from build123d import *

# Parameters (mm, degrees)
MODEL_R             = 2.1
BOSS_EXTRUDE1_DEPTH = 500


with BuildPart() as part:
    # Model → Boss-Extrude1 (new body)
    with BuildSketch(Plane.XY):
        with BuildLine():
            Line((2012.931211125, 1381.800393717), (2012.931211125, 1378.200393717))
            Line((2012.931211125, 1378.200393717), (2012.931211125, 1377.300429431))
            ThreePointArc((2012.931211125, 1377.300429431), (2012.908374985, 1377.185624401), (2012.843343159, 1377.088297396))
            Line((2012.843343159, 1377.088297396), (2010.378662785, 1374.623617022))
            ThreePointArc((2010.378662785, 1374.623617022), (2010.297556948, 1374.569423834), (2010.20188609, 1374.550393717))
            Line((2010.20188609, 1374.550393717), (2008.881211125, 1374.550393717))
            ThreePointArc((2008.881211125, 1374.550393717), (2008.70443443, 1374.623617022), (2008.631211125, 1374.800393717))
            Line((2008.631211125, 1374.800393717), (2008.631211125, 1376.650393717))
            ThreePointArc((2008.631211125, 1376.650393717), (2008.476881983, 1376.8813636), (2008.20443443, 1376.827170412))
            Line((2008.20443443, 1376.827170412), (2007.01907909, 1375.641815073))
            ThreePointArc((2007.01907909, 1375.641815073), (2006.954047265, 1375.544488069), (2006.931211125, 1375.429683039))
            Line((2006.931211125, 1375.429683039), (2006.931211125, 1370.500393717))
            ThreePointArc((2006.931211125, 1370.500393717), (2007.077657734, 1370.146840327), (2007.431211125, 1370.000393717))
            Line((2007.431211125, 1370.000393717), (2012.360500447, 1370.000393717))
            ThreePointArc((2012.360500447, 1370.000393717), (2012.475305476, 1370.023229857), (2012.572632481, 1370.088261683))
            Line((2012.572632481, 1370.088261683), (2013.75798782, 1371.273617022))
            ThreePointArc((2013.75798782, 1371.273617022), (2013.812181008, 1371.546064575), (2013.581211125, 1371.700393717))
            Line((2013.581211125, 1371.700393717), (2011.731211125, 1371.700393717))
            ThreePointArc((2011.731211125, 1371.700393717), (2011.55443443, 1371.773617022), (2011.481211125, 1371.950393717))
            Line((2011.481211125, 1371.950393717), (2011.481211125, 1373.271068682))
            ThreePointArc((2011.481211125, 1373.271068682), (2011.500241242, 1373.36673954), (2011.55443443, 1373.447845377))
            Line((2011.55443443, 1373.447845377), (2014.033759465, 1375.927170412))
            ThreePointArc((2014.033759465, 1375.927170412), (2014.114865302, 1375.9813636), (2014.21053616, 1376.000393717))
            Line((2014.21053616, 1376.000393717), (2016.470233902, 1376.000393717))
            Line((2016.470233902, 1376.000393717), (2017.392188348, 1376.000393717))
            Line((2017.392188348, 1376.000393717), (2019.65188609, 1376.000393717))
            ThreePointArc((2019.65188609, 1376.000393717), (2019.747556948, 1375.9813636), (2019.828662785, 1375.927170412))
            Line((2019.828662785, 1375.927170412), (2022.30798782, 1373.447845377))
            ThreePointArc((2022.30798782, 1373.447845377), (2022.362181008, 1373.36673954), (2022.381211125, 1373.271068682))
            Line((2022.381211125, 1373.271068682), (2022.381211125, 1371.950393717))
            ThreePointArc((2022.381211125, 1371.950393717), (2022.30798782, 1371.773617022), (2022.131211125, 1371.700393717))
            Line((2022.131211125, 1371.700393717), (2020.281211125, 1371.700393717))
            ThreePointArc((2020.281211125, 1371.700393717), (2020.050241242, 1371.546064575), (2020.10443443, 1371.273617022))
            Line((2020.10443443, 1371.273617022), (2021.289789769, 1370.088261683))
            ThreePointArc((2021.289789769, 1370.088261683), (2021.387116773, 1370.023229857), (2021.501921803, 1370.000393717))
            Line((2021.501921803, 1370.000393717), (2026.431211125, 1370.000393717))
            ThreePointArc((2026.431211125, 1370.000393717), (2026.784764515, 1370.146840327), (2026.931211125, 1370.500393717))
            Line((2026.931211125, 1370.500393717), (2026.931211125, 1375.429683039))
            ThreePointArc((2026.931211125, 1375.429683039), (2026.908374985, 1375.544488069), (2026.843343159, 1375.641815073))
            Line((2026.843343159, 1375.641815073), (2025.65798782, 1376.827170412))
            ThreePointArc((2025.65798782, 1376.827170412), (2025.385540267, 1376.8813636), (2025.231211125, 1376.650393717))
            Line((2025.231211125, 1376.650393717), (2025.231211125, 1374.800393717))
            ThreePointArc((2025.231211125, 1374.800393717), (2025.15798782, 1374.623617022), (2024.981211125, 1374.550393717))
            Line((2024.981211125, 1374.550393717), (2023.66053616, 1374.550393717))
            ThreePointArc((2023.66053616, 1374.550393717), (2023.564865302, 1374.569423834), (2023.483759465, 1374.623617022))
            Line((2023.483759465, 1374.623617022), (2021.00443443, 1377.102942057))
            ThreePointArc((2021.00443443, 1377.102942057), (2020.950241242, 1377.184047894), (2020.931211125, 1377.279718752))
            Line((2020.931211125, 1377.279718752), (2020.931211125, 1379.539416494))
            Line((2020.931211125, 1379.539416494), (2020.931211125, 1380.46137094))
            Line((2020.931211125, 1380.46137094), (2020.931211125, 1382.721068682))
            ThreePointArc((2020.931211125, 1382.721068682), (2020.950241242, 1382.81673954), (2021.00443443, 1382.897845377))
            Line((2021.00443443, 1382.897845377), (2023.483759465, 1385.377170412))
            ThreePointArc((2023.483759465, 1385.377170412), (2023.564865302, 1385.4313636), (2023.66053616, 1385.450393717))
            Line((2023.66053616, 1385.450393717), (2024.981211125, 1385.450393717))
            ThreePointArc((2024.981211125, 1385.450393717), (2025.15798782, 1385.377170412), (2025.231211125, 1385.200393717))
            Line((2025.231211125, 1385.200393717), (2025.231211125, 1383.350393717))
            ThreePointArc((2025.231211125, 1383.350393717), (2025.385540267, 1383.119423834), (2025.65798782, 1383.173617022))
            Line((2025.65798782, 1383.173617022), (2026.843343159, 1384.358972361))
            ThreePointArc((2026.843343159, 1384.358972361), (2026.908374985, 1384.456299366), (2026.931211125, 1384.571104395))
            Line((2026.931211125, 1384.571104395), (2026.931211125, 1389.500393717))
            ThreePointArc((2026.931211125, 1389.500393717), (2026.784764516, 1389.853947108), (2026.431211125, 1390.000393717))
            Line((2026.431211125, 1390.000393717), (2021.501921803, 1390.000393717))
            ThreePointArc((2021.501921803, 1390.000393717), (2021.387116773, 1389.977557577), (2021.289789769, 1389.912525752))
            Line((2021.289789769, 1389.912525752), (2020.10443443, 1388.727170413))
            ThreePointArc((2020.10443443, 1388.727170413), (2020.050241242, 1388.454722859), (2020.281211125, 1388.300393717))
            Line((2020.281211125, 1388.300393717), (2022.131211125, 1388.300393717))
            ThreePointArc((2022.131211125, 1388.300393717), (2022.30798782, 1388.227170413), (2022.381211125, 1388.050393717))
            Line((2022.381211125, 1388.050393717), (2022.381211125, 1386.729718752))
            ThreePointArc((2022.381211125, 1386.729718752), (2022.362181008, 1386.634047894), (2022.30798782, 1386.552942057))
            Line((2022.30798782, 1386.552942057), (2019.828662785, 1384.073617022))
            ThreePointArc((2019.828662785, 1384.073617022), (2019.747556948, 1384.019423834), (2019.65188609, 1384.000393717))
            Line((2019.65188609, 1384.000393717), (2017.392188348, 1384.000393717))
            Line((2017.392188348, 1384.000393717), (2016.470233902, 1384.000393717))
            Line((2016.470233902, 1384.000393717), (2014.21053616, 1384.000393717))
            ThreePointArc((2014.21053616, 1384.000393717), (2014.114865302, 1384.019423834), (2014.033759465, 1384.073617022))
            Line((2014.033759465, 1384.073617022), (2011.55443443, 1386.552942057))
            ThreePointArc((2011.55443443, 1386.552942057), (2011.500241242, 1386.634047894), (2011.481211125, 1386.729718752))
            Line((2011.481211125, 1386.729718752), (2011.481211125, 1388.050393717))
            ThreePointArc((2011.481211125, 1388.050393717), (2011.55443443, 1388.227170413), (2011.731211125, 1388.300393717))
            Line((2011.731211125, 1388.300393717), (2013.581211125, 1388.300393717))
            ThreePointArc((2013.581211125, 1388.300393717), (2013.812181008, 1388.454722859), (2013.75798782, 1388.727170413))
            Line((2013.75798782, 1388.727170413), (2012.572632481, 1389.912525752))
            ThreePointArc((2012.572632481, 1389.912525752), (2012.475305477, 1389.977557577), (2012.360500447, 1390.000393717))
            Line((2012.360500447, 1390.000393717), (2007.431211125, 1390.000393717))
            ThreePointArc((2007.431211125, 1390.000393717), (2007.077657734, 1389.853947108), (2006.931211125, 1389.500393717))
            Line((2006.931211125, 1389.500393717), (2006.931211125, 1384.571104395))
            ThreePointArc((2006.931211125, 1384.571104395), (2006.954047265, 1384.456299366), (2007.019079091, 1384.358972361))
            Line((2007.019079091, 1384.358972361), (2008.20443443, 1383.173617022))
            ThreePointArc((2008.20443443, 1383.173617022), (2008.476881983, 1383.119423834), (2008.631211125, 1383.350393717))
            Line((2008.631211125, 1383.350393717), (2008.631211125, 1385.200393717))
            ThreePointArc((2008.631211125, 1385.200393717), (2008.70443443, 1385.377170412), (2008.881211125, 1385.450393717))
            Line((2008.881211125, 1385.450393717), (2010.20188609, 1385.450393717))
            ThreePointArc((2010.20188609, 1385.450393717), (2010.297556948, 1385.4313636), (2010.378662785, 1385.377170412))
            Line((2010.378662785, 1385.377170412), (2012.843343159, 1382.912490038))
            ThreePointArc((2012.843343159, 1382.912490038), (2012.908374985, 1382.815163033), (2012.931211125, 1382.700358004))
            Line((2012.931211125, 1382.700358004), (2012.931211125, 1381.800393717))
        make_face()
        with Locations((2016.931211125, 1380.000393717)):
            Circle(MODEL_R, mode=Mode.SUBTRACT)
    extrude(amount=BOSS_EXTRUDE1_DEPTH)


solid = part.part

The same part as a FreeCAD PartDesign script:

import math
import FreeCAD as App
import Part
import Sketcher

V = App.Vector

doc = App.newDocument("Part")
body = doc.addObject("PartDesign::Body", "Body")

# Sketch on XY plane
sketch1 = doc.addObject("Sketcher::SketchObject", "Sketch")
body.addObject(sketch1)
sketch1.AttachmentSupport = (doc.XY_Plane, [""])
sketch1.MapMode = "FlatFace"
sketch1.addGeometry(Part.ArcOfCircle(Part.Circle(V(2012.631211, 1377.300429, 0), V(0, 0, 1), 0.3), math.radians(-45), math.radians(0)), False)
sketch1.addGeometry(Part.LineSegment(V(2012.843343, 1377.088297, 0), V(2010.378663, 1374.623617, 0)), False)
sketch1.addGeometry(Part.ArcOfCircle(Part.Circle(V(2010.201886, 1374.800394, 0), V(0, 0, 1), 0.25), math.radians(-90), math.radians(-45)), False)
sketch1.addGeometry(Part.LineSegment(V(2010.201886, 1374.550394, 0), V(2008.881211, 1374.550394, 0)), False)
sketch1.addGeometry(Part.ArcOfCircle(Part.Circle(V(2008.881211, 1374.800394, 0), V(0, 0, 1), 0.25), math.radians(-180), math.radians(-90)), False)
sketch1.addGeometry(Part.LineSegment(V(2008.631211, 1374.800394, 0), V(2008.631211, 1376.650394, 0)), False)
sketch1.addGeometry(Part.ArcOfCircle(Part.Circle(V(2008.381211, 1376.650394, 0), V(0, 0, 1), 0.25), math.radians(0), math.radians(135)), False)
sketch1.addGeometry(Part.LineSegment(V(2008.204434, 1376.82717, 0), V(2007.019079, 1375.641815, 0)), False)
sketch1.addGeometry(Part.ArcOfCircle(Part.Circle(V(2007.231211, 1375.429683, 0), V(0, 0, 1), 0.3), math.radians(135), math.radians(180)), False)
sketch1.addGeometry(Part.LineSegment(V(2006.931211, 1375.429683, 0), V(2006.931211, 1370.500394, 0)), False)
sketch1.addGeometry(Part.ArcOfCircle(Part.Circle(V(2007.431211, 1370.500394, 0), V(0, 0, 1), 0.5), math.radians(180), math.radians(270)), False)
sketch1.addGeometry(Part.LineSegment(V(2007.431211, 1370.000394, 0), V(2012.3605, 1370.000394, 0)), False)
sketch1.addGeometry(Part.ArcOfCircle(Part.Circle(V(2012.3605, 1370.300394, 0), V(0, 0, 1), 0.3), math.radians(-90), math.radians(-45)), False)
sketch1.addGeometry(Part.LineSegment(V(2012.572632, 1370.088262, 0), V(2013.757988, 1371.273617, 0)), False)
sketch1.addGeometry(Part.ArcOfCircle(Part.Circle(V(2013.581211, 1371.450394, 0), V(0, 0, 1), 0.25), math.radians(-45), math.radians(90)), False)
sketch1.addGeometry(Part.LineSegment(V(2013.581211, 1371.700394, 0), V(2011.731211, 1371.700394, 0)), False)
sketch1.addGeometry(Part.ArcOfCircle(Part.Circle(V(2011.731211, 1371.950394, 0), V(0, 0, 1), 0.25), math.radians(-180), math.radians(-90)), False)
sketch1.addGeometry(Part.LineSegment(V(2011.481211, 1371.950394, 0), V(2011.481211, 1373.271069, 0)), False)
sketch1.addGeometry(Part.ArcOfCircle(Part.Circle(V(2011.731211, 1373.271069, 0), V(0, 0, 1), 0.25), math.radians(135), math.radians(180)), False)
sketch1.addGeometry(Part.LineSegment(V(2011.554434, 1373.447845, 0), V(2014.033759, 1375.92717, 0)), False)
sketch1.addGeometry(Part.ArcOfCircle(Part.Circle(V(2014.210536, 1375.750394, 0), V(0, 0, 1), 0.25), math.radians(90), math.radians(135)), False)
sketch1.addGeometry(Part.LineSegment(V(2014.210536, 1376.000394, 0), V(2019.651886, 1376.000394, 0)), False)
sketch1.addGeometry(Part.ArcOfCircle(Part.Circle(V(2019.651886, 1375.750394, 0), V(0, 0, 1), 0.25), math.radians(45), math.radians(90)), False)
sketch1.addGeometry(Part.LineSegment(V(2019.828663, 1375.92717, 0), V(2022.307988, 1373.447845, 0)), False)
sketch1.addGeometry(Part.ArcOfCircle(Part.Circle(V(2022.131211, 1373.271069, 0), V(0, 0, 1), 0.25), math.radians(0), math.radians(45)), False)
sketch1.addGeometry(Part.LineSegment(V(2022.381211, 1373.271069, 0), V(2022.381211, 1371.950394, 0)), False)
sketch1.addGeometry(Part.ArcOfCircle(Part.Circle(V(2022.131211, 1371.950394, 0), V(0, 0, 1), 0.25), math.radians(-90), math.radians(0)), False)
sketch1.addGeometry(Part.LineSegment(V(2022.131211, 1371.700394, 0), V(2020.281211, 1371.700394, 0)), False)
sketch1.addGeometry(Part.ArcOfCircle(Part.Circle(V(2020.281211, 1371.450394, 0), V(0, 0, 1), 0.25), math.radians(90), math.radians(225)), False)
sketch1.addGeometry(Part.LineSegment(V(2020.104434, 1371.273617, 0), V(2021.28979, 1370.088262, 0)), False)
sketch1.addGeometry(Part.ArcOfCircle(Part.Circle(V(2021.501922, 1370.300394, 0), V(0, 0, 1), 0.3), math.radians(-135.000001), math.radians(-90)), False)
sketch1.addGeometry(Part.LineSegment(V(2021.501922, 1370.000394, 0), V(2026.431211, 1370.000394, 0)), False)
sketch1.addGeometry(Part.ArcOfCircle(Part.Circle(V(2026.431211, 1370.500394, 0), V(0, 0, 1), 0.5), math.radians(-90), math.radians(0)), False)
sketch1.addGeometry(Part.LineSegment(V(2026.931211, 1370.500394, 0), V(2026.931211, 1375.429683, 0)), False)
sketch1.addGeometry(Part.ArcOfCircle(Part.Circle(V(2026.631211, 1375.429683, 0), V(0, 0, 1), 0.3), math.radians(0), math.radians(45.000001)), False)
sketch1.addGeometry(Part.LineSegment(V(2026.843343, 1375.641815, 0), V(2025.657988, 1376.82717, 0)), False)
sketch1.addGeometry(Part.ArcOfCircle(Part.Circle(V(2025.481211, 1376.650394, 0), V(0, 0, 1), 0.25), math.radians(45), math.radians(180)), False)
sketch1.addGeometry(Part.LineSegment(V(2025.231211, 1376.650394, 0), V(2025.231211, 1374.800394, 0)), False)
sketch1.addGeometry(Part.ArcOfCircle(Part.Circle(V(2024.981211, 1374.800394, 0), V(0, 0, 1), 0.25), math.radians(-90), math.radians(0)), False)
sketch1.addGeometry(Part.LineSegment(V(2024.981211, 1374.550394, 0), V(2023.660536, 1374.550394, 0)), False)
sketch1.addGeometry(Part.ArcOfCircle(Part.Circle(V(2023.660536, 1374.800394, 0), V(0, 0, 1), 0.25), math.radians(-135), math.radians(-90)), False)
sketch1.addGeometry(Part.LineSegment(V(2023.483759, 1374.623617, 0), V(2021.004434, 1377.102942, 0)), False)
sketch1.addGeometry(Part.ArcOfCircle(Part.Circle(V(2021.181211, 1377.279719, 0), V(0, 0, 1), 0.25), math.radians(180), math.radians(225)), False)
sketch1.addGeometry(Part.LineSegment(V(2020.931211, 1377.279719, 0), V(2020.931211, 1382.721069, 0)), False)
sketch1.addGeometry(Part.ArcOfCircle(Part.Circle(V(2021.181211, 1382.721069, 0), V(0, 0, 1), 0.25), math.radians(135), math.radians(180)), False)
sketch1.addGeometry(Part.LineSegment(V(2021.004434, 1382.897845, 0), V(2023.483759, 1385.37717, 0)), False)
sketch1.addGeometry(Part.ArcOfCircle(Part.Circle(V(2023.660536, 1385.200394, 0), V(0, 0, 1), 0.25), math.radians(90), math.radians(135)), False)
sketch1.addGeometry(Part.LineSegment(V(2023.660536, 1385.450394, 0), V(2024.981211, 1385.450394, 0)), False)
sketch1.addGeometry(Part.ArcOfCircle(Part.Circle(V(2024.981211, 1385.200394, 0), V(0, 0, 1), 0.25), math.radians(0), math.radians(90)), False)
sketch1.addGeometry(Part.LineSegment(V(2025.231211, 1385.200394, 0), V(2025.231211, 1383.350394, 0)), False)
sketch1.addGeometry(Part.ArcOfCircle(Part.Circle(V(2025.481211, 1383.350394, 0), V(0, 0, 1), 0.25), math.radians(180), math.radians(315)), False)
sketch1.addGeometry(Part.LineSegment(V(2025.657988, 1383.173617, 0), V(2026.843343, 1384.358972, 0)), False)
sketch1.addGeometry(Part.ArcOfCircle(Part.Circle(V(2026.631211, 1384.571104, 0), V(0, 0, 1), 0.3), math.radians(-45), math.radians(0)), False)
sketch1.addGeometry(Part.LineSegment(V(2026.931211, 1384.571104, 0), V(2026.931211, 1389.500394, 0)), False)
sketch1.addGeometry(Part.ArcOfCircle(Part.Circle(V(2026.431211, 1389.500394, 0), V(0, 0, 1), 0.5), math.radians(0), math.radians(90)), False)
sketch1.addGeometry(Part.LineSegment(V(2026.431211, 1390.000394, 0), V(2021.501922, 1390.000394, 0)), False)
sketch1.addGeometry(Part.ArcOfCircle(Part.Circle(V(2021.501922, 1389.700394, 0), V(0, 0, 1), 0.3), math.radians(90), math.radians(135)), False)
sketch1.addGeometry(Part.LineSegment(V(2021.28979, 1389.912526, 0), V(2020.104434, 1388.72717, 0)), False)
sketch1.addGeometry(Part.ArcOfCircle(Part.Circle(V(2020.281211, 1388.550394, 0), V(0, 0, 1), 0.25), math.radians(135), math.radians(270)), False)
sketch1.addGeometry(Part.LineSegment(V(2020.281211, 1388.300394, 0), V(2022.131211, 1388.300394, 0)), False)
sketch1.addGeometry(Part.ArcOfCircle(Part.Circle(V(2022.131211, 1388.050394, 0), V(0, 0, 1), 0.25), math.radians(0), math.radians(90)), False)
sketch1.addGeometry(Part.LineSegment(V(2022.381211, 1388.050394, 0), V(2022.381211, 1386.729719, 0)), False)
sketch1.addGeometry(Part.ArcOfCircle(Part.Circle(V(2022.131211, 1386.729719, 0), V(0, 0, 1), 0.25), math.radians(-45), math.radians(0)), False)
sketch1.addGeometry(Part.LineSegment(V(2022.307988, 1386.552942, 0), V(2019.828663, 1384.073617, 0)), False)
sketch1.addGeometry(Part.ArcOfCircle(Part.Circle(V(2019.651886, 1384.250394, 0), V(0, 0, 1), 0.25), math.radians(-90), math.radians(-45)), False)
sketch1.addGeometry(Part.LineSegment(V(2019.651886, 1384.000394, 0), V(2014.210536, 1384.000394, 0)), False)
sketch1.addGeometry(Part.ArcOfCircle(Part.Circle(V(2014.210536, 1384.250394, 0), V(0, 0, 1), 0.25), math.radians(-135), math.radians(-90)), False)
sketch1.addGeometry(Part.LineSegment(V(2014.033759, 1384.073617, 0), V(2011.554434, 1386.552942, 0)), False)
sketch1.addGeometry(Part.ArcOfCircle(Part.Circle(V(2011.731211, 1386.729719, 0), V(0, 0, 1), 0.25), math.radians(180), math.radians(225)), False)
sketch1.addGeometry(Part.LineSegment(V(2011.481211, 1386.729719, 0), V(2011.481211, 1388.050394, 0)), False)
sketch1.addGeometry(Part.ArcOfCircle(Part.Circle(V(2011.731211, 1388.050394, 0), V(0, 0, 1), 0.25), math.radians(90), math.radians(180)), False)
sketch1.addGeometry(Part.LineSegment(V(2011.731211, 1388.300394, 0), V(2013.581211, 1388.300394, 0)), False)
sketch1.addGeometry(Part.ArcOfCircle(Part.Circle(V(2013.581211, 1388.550394, 0), V(0, 0, 1), 0.25), math.radians(-90), math.radians(45)), False)
sketch1.addGeometry(Part.LineSegment(V(2013.757988, 1388.72717, 0), V(2012.572632, 1389.912526, 0)), False)
sketch1.addGeometry(Part.ArcOfCircle(Part.Circle(V(2012.3605, 1389.700394, 0), V(0, 0, 1), 0.3), math.radians(45), math.radians(90)), False)
sketch1.addGeometry(Part.LineSegment(V(2012.3605, 1390.000394, 0), V(2007.431211, 1390.000394, 0)), False)
sketch1.addGeometry(Part.ArcOfCircle(Part.Circle(V(2007.431211, 1389.500394, 0), V(0, 0, 1), 0.5), math.radians(90), math.radians(180)), False)
sketch1.addGeometry(Part.LineSegment(V(2006.931211, 1389.500394, 0), V(2006.931211, 1384.571104, 0)), False)
sketch1.addGeometry(Part.ArcOfCircle(Part.Circle(V(2007.231211, 1384.571104, 0), V(0, 0, 1), 0.3), math.radians(180), math.radians(225)), False)
sketch1.addGeometry(Part.LineSegment(V(2007.019079, 1384.358972, 0), V(2008.204434, 1383.173617, 0)), False)
sketch1.addGeometry(Part.ArcOfCircle(Part.Circle(V(2008.381211, 1383.350394, 0), V(0, 0, 1), 0.25), math.radians(-135), math.radians(0)), False)
sketch1.addGeometry(Part.LineSegment(V(2008.631211, 1383.350394, 0), V(2008.631211, 1385.200394, 0)), False)
sketch1.addGeometry(Part.ArcOfCircle(Part.Circle(V(2008.881211, 1385.200394, 0), V(0, 0, 1), 0.25), math.radians(90), math.radians(180)), False)
sketch1.addGeometry(Part.LineSegment(V(2008.881211, 1385.450394, 0), V(2010.201886, 1385.450394, 0)), False)
sketch1.addGeometry(Part.ArcOfCircle(Part.Circle(V(2010.201886, 1385.200394, 0), V(0, 0, 1), 0.25), math.radians(45), math.radians(90)), False)
sketch1.addGeometry(Part.LineSegment(V(2010.378663, 1385.37717, 0), V(2012.843343, 1382.91249, 0)), False)
sketch1.addGeometry(Part.ArcOfCircle(Part.Circle(V(2012.631211, 1382.700358, 0), V(0, 0, 1), 0.3), math.radians(0), math.radians(45)), False)
sketch1.addGeometry(Part.LineSegment(V(2012.931211, 1382.700358, 0), V(2012.931211, 1377.300429, 0)), False)
sketch1.addGeometry(Part.Circle(V(2016.931211, 1380.000394, 0), V(0, 0, 1), 2.1), False)
sketch1.addConstraint(Sketcher.Constraint("Tangent", 0, 1, 1, 1))
sketch1.addConstraint(Sketcher.Constraint("Tangent", 1, 2, 2, 2))
sketch1.addConstraint(Sketcher.Constraint("Tangent", 2, 1, 3, 1))
sketch1.addConstraint(Sketcher.Constraint("Tangent", 3, 2, 4, 2))
sketch1.addConstraint(Sketcher.Constraint("Tangent", 4, 1, 5, 1))
sketch1.addConstraint(Sketcher.Constraint("Tangent", 5, 2, 6, 1))
sketch1.addConstraint(Sketcher.Constraint("Tangent", 6, 2, 7, 1))
sketch1.addConstraint(Sketcher.Constraint("Tangent", 7, 2, 8, 1))
sketch1.addConstraint(Sketcher.Constraint("Tangent", 8, 2, 9, 1))
sketch1.addConstraint(Sketcher.Constraint("Tangent", 9, 2, 10, 1))
sketch1.addConstraint(Sketcher.Constraint("Tangent", 10, 2, 11, 1))
sketch1.addConstraint(Sketcher.Constraint("Tangent", 11, 2, 12, 1))
sketch1.addConstraint(Sketcher.Constraint("Tangent", 12, 2, 13, 1))
sketch1.addConstraint(Sketcher.Constraint("Tangent", 13, 2, 14, 1))
sketch1.addConstraint(Sketcher.Constraint("Tangent", 14, 2, 15, 1))
sketch1.addConstraint(Sketcher.Constraint("Tangent", 15, 2, 16, 2))
sketch1.addConstraint(Sketcher.Constraint("Tangent", 16, 1, 17, 1))
sketch1.addConstraint(Sketcher.Constraint("Tangent", 17, 2, 18, 2))
sketch1.addConstraint(Sketcher.Constraint("Tangent", 18, 1, 19, 1))
sketch1.addConstraint(Sketcher.Constraint("Tangent", 19, 2, 20, 2))
sketch1.addConstraint(Sketcher.Constraint("Tangent", 20, 1, 21, 1))
sketch1.addConstraint(Sketcher.Constraint("Tangent", 21, 2, 22, 2))
sketch1.addConstraint(Sketcher.Constraint("Tangent", 22, 1, 23, 1))
sketch1.addConstraint(Sketcher.Constraint("Tangent", 23, 2, 24, 2))
sketch1.addConstraint(Sketcher.Constraint("Tangent", 24, 1, 25, 1))
sketch1.addConstraint(Sketcher.Constraint("Tangent", 25, 2, 26, 2))
sketch1.addConstraint(Sketcher.Constraint("Tangent", 26, 1, 27, 1))
sketch1.addConstraint(Sketcher.Constraint("Tangent", 27, 2, 28, 1))
sketch1.addConstraint(Sketcher.Constraint("Tangent", 28, 2, 29, 1))
sketch1.addConstraint(Sketcher.Constraint("Tangent", 29, 2, 30, 1))
sketch1.addConstraint(Sketcher.Constraint("Tangent", 30, 2, 31, 1))
sketch1.addConstraint(Sketcher.Constraint("Tangent", 31, 2, 32, 1))
sketch1.addConstraint(Sketcher.Constraint("Tangent", 32, 2, 33, 1))
sketch1.addConstraint(Sketcher.Constraint("Tangent", 33, 2, 34, 1))
sketch1.addConstraint(Sketcher.Constraint("Tangent", 34, 2, 35, 1))
sketch1.addConstraint(Sketcher.Constraint("Tangent", 35, 2, 36, 1))
sketch1.addConstraint(Sketcher.Constraint("Tangent", 36, 2, 37, 1))
sketch1.addConstraint(Sketcher.Constraint("Tangent", 37, 2, 38, 2))
sketch1.addConstraint(Sketcher.Constraint("Tangent", 38, 1, 39, 1))
sketch1.addConstraint(Sketcher.Constraint("Tangent", 39, 2, 40, 2))
sketch1.addConstraint(Sketcher.Constraint("Tangent", 40, 1, 41, 1))
sketch1.addConstraint(Sketcher.Constraint("Tangent", 41, 2, 42, 2))
sketch1.addConstraint(Sketcher.Constraint("Tangent", 42, 1, 43, 1))
sketch1.addConstraint(Sketcher.Constraint("Tangent", 43, 2, 44, 2))
sketch1.addConstraint(Sketcher.Constraint("Tangent", 44, 1, 45, 1))
sketch1.addConstraint(Sketcher.Constraint("Tangent", 45, 2, 46, 2))
sketch1.addConstraint(Sketcher.Constraint("Tangent", 46, 1, 47, 1))
sketch1.addConstraint(Sketcher.Constraint("Tangent", 47, 2, 48, 2))
sketch1.addConstraint(Sketcher.Constraint("Tangent", 48, 1, 49, 1))
sketch1.addConstraint(Sketcher.Constraint("Tangent", 49, 2, 50, 1))
sketch1.addConstraint(Sketcher.Constraint("Tangent", 50, 2, 51, 1))
sketch1.addConstraint(Sketcher.Constraint("Tangent", 51, 2, 52, 1))
sketch1.addConstraint(Sketcher.Constraint("Tangent", 52, 2, 53, 1))
sketch1.addConstraint(Sketcher.Constraint("Tangent", 53, 2, 54, 1))
sketch1.addConstraint(Sketcher.Constraint("Tangent", 54, 2, 55, 1))
sketch1.addConstraint(Sketcher.Constraint("Tangent", 55, 2, 56, 1))
sketch1.addConstraint(Sketcher.Constraint("Tangent", 56, 2, 57, 1))
sketch1.addConstraint(Sketcher.Constraint("Tangent", 57, 2, 58, 1))
sketch1.addConstraint(Sketcher.Constraint("Tangent", 58, 2, 59, 1))
sketch1.addConstraint(Sketcher.Constraint("Tangent", 59, 2, 60, 2))
sketch1.addConstraint(Sketcher.Constraint("Tangent", 60, 1, 61, 1))
sketch1.addConstraint(Sketcher.Constraint("Tangent", 61, 2, 62, 2))
sketch1.addConstraint(Sketcher.Constraint("Tangent", 62, 1, 63, 1))
sketch1.addConstraint(Sketcher.Constraint("Tangent", 63, 2, 64, 2))
sketch1.addConstraint(Sketcher.Constraint("Tangent", 64, 1, 65, 1))
sketch1.addConstraint(Sketcher.Constraint("Tangent", 65, 2, 66, 2))
sketch1.addConstraint(Sketcher.Constraint("Tangent", 66, 1, 67, 1))
sketch1.addConstraint(Sketcher.Constraint("Tangent", 67, 2, 68, 2))
sketch1.addConstraint(Sketcher.Constraint("Tangent", 68, 1, 69, 1))
sketch1.addConstraint(Sketcher.Constraint("Tangent", 69, 2, 70, 2))
sketch1.addConstraint(Sketcher.Constraint("Tangent", 70, 1, 71, 1))
sketch1.addConstraint(Sketcher.Constraint("Tangent", 71, 2, 72, 1))
sketch1.addConstraint(Sketcher.Constraint("Tangent", 72, 2, 73, 1))
sketch1.addConstraint(Sketcher.Constraint("Tangent", 73, 2, 74, 1))
sketch1.addConstraint(Sketcher.Constraint("Tangent", 74, 2, 75, 1))
sketch1.addConstraint(Sketcher.Constraint("Tangent", 75, 2, 76, 1))
sketch1.addConstraint(Sketcher.Constraint("Tangent", 76, 2, 77, 1))
sketch1.addConstraint(Sketcher.Constraint("Tangent", 77, 2, 78, 1))
sketch1.addConstraint(Sketcher.Constraint("Tangent", 78, 2, 79, 1))
sketch1.addConstraint(Sketcher.Constraint("Tangent", 79, 2, 80, 1))
sketch1.addConstraint(Sketcher.Constraint("Tangent", 80, 2, 81, 1))
sketch1.addConstraint(Sketcher.Constraint("Tangent", 81, 2, 82, 2))
sketch1.addConstraint(Sketcher.Constraint("Tangent", 82, 1, 83, 1))
sketch1.addConstraint(Sketcher.Constraint("Tangent", 83, 2, 84, 2))
sketch1.addConstraint(Sketcher.Constraint("Tangent", 84, 1, 85, 1))
sketch1.addConstraint(Sketcher.Constraint("Tangent", 85, 2, 86, 2))
sketch1.addConstraint(Sketcher.Constraint("Tangent", 86, 1, 87, 1))
sketch1.addConstraint(Sketcher.Constraint("Tangent", 87, 2, 0, 2))
sketch1.addConstraint(Sketcher.Constraint("Horizontal", 3))
sketch1.addConstraint(Sketcher.Constraint("Vertical", 5))
sketch1.addConstraint(Sketcher.Constraint("Vertical", 9))
sketch1.addConstraint(Sketcher.Constraint("Horizontal", 11))
sketch1.addConstraint(Sketcher.Constraint("Horizontal", 15))
sketch1.addConstraint(Sketcher.Constraint("Vertical", 17))
sketch1.addConstraint(Sketcher.Constraint("Horizontal", 21))
sketch1.addConstraint(Sketcher.Constraint("Vertical", 25))
sketch1.addConstraint(Sketcher.Constraint("Horizontal", 27))
sketch1.addConstraint(Sketcher.Constraint("Horizontal", 31))
sketch1.addConstraint(Sketcher.Constraint("Vertical", 33))
sketch1.addConstraint(Sketcher.Constraint("Vertical", 37))
sketch1.addConstraint(Sketcher.Constraint("Horizontal", 39))
sketch1.addConstraint(Sketcher.Constraint("Vertical", 43))
sketch1.addConstraint(Sketcher.Constraint("Horizontal", 47))
sketch1.addConstraint(Sketcher.Constraint("Vertical", 49))
sketch1.addConstraint(Sketcher.Constraint("Vertical", 53))
sketch1.addConstraint(Sketcher.Constraint("Horizontal", 55))
sketch1.addConstraint(Sketcher.Constraint("Horizontal", 59))
sketch1.addConstraint(Sketcher.Constraint("Vertical", 61))
sketch1.addConstraint(Sketcher.Constraint("Horizontal", 65))
sketch1.addConstraint(Sketcher.Constraint("Vertical", 69))
sketch1.addConstraint(Sketcher.Constraint("Horizontal", 71))
sketch1.addConstraint(Sketcher.Constraint("Horizontal", 75))
sketch1.addConstraint(Sketcher.Constraint("Vertical", 77))
sketch1.addConstraint(Sketcher.Constraint("Vertical", 81))
sketch1.addConstraint(Sketcher.Constraint("Horizontal", 83))
sketch1.addConstraint(Sketcher.Constraint("Vertical", 87))
sketch1.addConstraint(Sketcher.Constraint("Equal", 2, 4))
sketch1.addConstraint(Sketcher.Constraint("Equal", 4, 6))
sketch1.addConstraint(Sketcher.Constraint("Equal", 0, 8))
sketch1.addConstraint(Sketcher.Constraint("Equal", 8, 12))
sketch1.addConstraint(Sketcher.Constraint("Equal", 6, 14))
sketch1.addConstraint(Sketcher.Constraint("Equal", 14, 16))
sketch1.addConstraint(Sketcher.Constraint("Equal", 16, 18))
sketch1.addConstraint(Sketcher.Constraint("Equal", 18, 20))
sketch1.addConstraint(Sketcher.Constraint("Equal", 20, 22))
sketch1.addConstraint(Sketcher.Constraint("Equal", 22, 24))
sketch1.addConstraint(Sketcher.Constraint("Equal", 24, 26))
sketch1.addConstraint(Sketcher.Constraint("Equal", 26, 28))
sketch1.addConstraint(Sketcher.Constraint("Equal", 12, 30))
sketch1.addConstraint(Sketcher.Constraint("Equal", 10, 32))
sketch1.addConstraint(Sketcher.Constraint("Equal", 30, 34))
sketch1.addConstraint(Sketcher.Constraint("Equal", 28, 36))
sketch1.addConstraint(Sketcher.Constraint("Equal", 36, 38))
sketch1.addConstraint(Sketcher.Constraint("Equal", 38, 40))
sketch1.addConstraint(Sketcher.Constraint("Equal", 40, 42))
sketch1.addConstraint(Sketcher.Constraint("Equal", 42, 44))
sketch1.addConstraint(Sketcher.Constraint("Equal", 44, 46))
sketch1.addConstraint(Sketcher.Constraint("Equal", 46, 48))
sketch1.addConstraint(Sketcher.Constraint("Equal", 48, 50))
sketch1.addConstraint(Sketcher.Constraint("Equal", 34, 52))
sketch1.addConstraint(Sketcher.Constraint("Equal", 32, 54))
sketch1.addConstraint(Sketcher.Constraint("Equal", 52, 56))
sketch1.addConstraint(Sketcher.Constraint("Equal", 50, 58))
sketch1.addConstraint(Sketcher.Constraint("Equal", 58, 60))
sketch1.addConstraint(Sketcher.Constraint("Equal", 60, 62))
sketch1.addConstraint(Sketcher.Constraint("Equal", 62, 64))
sketch1.addConstraint(Sketcher.Constraint("Equal", 64, 66))
sketch1.addConstraint(Sketcher.Constraint("Equal", 66, 68))
sketch1.addConstraint(Sketcher.Constraint("Equal", 68, 70))
sketch1.addConstraint(Sketcher.Constraint("Equal", 70, 72))
sketch1.addConstraint(Sketcher.Constraint("Equal", 56, 74))
sketch1.addConstraint(Sketcher.Constraint("Equal", 54, 76))
sketch1.addConstraint(Sketcher.Constraint("Equal", 74, 78))
sketch1.addConstraint(Sketcher.Constraint("Equal", 72, 80))
sketch1.addConstraint(Sketcher.Constraint("Equal", 80, 82))
sketch1.addConstraint(Sketcher.Constraint("Equal", 82, 84))
sketch1.addConstraint(Sketcher.Constraint("Equal", 78, 86))
sketch1.addConstraint(Sketcher.Constraint("Parallel", 1, 7))
sketch1.addConstraint(Sketcher.Constraint("Parallel", 7, 13))
sketch1.addConstraint(Sketcher.Constraint("Parallel", 13, 19))
sketch1.addConstraint(Sketcher.Constraint("Perpendicular", 19, 23))
sketch1.addConstraint(Sketcher.Constraint("Parallel", 23, 29))
sketch1.addConstraint(Sketcher.Constraint("Parallel", 29, 35))
sketch1.addConstraint(Sketcher.Constraint("Parallel", 35, 41))
sketch1.addConstraint(Sketcher.Constraint("Perpendicular", 41, 45))
sketch1.addConstraint(Sketcher.Constraint("Parallel", 45, 51))
sketch1.addConstraint(Sketcher.Constraint("Parallel", 51, 57))
sketch1.addConstraint(Sketcher.Constraint("Parallel", 57, 63))
sketch1.addConstraint(Sketcher.Constraint("Perpendicular", 63, 67))
sketch1.addConstraint(Sketcher.Constraint("Parallel", 67, 73))
sketch1.addConstraint(Sketcher.Constraint("Parallel", 73, 79))
sketch1.addConstraint(Sketcher.Constraint("Parallel", 79, 85))
sketch1.addConstraint(Sketcher.Constraint("Horizontal", 18, 3, 24, 3))
sketch1.addConstraint(Sketcher.Constraint("Horizontal", 16, 3, 26, 3))
sketch1.addConstraint(Sketcher.Constraint("Horizontal", 12, 3, 30, 3))
sketch1.addConstraint(Sketcher.Constraint("Horizontal", 8, 3, 34, 3))
sketch1.addConstraint(Sketcher.Constraint("Horizontal", 6, 3, 36, 3))
sketch1.addConstraint(Sketcher.Constraint("Horizontal", 4, 3, 38, 3))
sketch1.addConstraint(Sketcher.Constraint("Horizontal", 62, 3, 68, 3))
sketch1.addConstraint(Sketcher.Constraint("Horizontal", 60, 3, 70, 3))
sketch1.addConstraint(Sketcher.Constraint("Horizontal", 56, 3, 74, 3))
sketch1.addConstraint(Sketcher.Constraint("Horizontal", 52, 3, 78, 3))
sketch1.addConstraint(Sketcher.Constraint("Horizontal", 50, 3, 80, 3))
sketch1.addConstraint(Sketcher.Constraint("Horizontal", 48, 3, 82, 3))
sketch1.addConstraint(Sketcher.Constraint("Horizontal", 19, 2, 22, 1))
sketch1.addConstraint(Sketcher.Constraint("Vertical", 40, 3, 46, 3))
sketch1.addConstraint(Sketcher.Constraint("Vertical", 38, 3, 48, 3))
sketch1.addConstraint(Sketcher.Constraint("Vertical", 34, 3, 52, 3))
sketch1.addConstraint(Sketcher.Constraint("Vertical", 30, 3, 56, 3))
sketch1.addConstraint(Sketcher.Constraint("Vertical", 28, 3, 58, 3))
sketch1.addConstraint(Sketcher.Constraint("Vertical", 26, 3, 60, 3))
sketch1.addConstraint(Sketcher.Constraint("Vertical", 22, 3, 64, 3))
sketch1.addConstraint(Sketcher.Constraint("Vertical", 20, 3, 66, 3))
sketch1.addConstraint(Sketcher.Constraint("Vertical", 14, 3, 72, 3))
sketch1.addConstraint(Sketcher.Constraint("Vertical", 10, 3, 76, 3))
sketch1.addConstraint(Sketcher.Constraint("Vertical", 2, 3, 84, 3))
sketch1.addConstraint(Sketcher.Constraint("Equal", 15, 27))
sketch1.addConstraint(Sketcher.Constraint("Equal", 11, 31))
sketch1.addConstraint(Sketcher.Constraint("Equal", 3, 39))
sketch1.addConstraint(Sketcher.Constraint("Equal", 71, 5))
sketch1.addConstraint(Sketcher.Constraint("Equal", 75, 9))
sketch1.addConstraint(Sketcher.Constraint("Equal", 83, 17))
sketch1.addConstraint(Sketcher.Constraint("Equal", 65, 43))
sketch1.addConstraint(Sketcher.Constraint("Equal", 37, 49))
sketch1.addConstraint(Sketcher.Constraint("Equal", 33, 53))
sketch1.addConstraint(Sketcher.Constraint("Equal", 25, 61))
sketch1.addConstraint(Sketcher.Constraint("Equal", 7, 13))
sketch1.addConstraint(Sketcher.Constraint("Equal", 23, 41))
sketch1.addConstraint(Sketcher.Constraint("Diameter", 88, 4.2))
sketch1.addConstraint(Sketcher.Constraint("Radius", 0, 0.3))
sketch1.addConstraint(Sketcher.Constraint("Radius", 10, 0.5))
sketch1.addConstraint(Sketcher.Constraint("Radius", 2, 0.25))
sketch1.addConstraint(Sketcher.Constraint("DistanceX", 15, 2, 15, 1, 1.85))
sketch1.addConstraint(Sketcher.Constraint("DistanceX", 11, 1, 11, 2, 4.929289))
sketch1.addConstraint(Sketcher.Constraint("DistanceX", 21, 1, 21, 2, 5.44135))
sketch1.addConstraint(Sketcher.Constraint("DistanceY", 87, 2, 87, 1, 5.399929))
sketch1.addConstraint(Sketcher.Constraint("DistanceX", -1, 1, 12, 3, 2012.3605))
sketch1.addConstraint(Sketcher.Constraint("DistanceX", 3, 2, 3, 1, 1.320675))
sketch1.addConstraint(Sketcher.Constraint("DistanceX", -1, 1, 0, 3, 2012.631211))
sketch1.addConstraint(Sketcher.Constraint("DistanceY", -1, 1, 0, 3, 1377.300429))
sketch1.addConstraint(Sketcher.Constraint("DistanceX", -1, 1, 4, 3, 2008.881211))
sketch1.addConstraint(Sketcher.Constraint("DistanceX", -1, 1, 88, 3, 2016.931211))
sketch1.addConstraint(Sketcher.Constraint("DistanceY", -1, 1, 88, 3, 1380.000394))
pad1 = doc.addObject("PartDesign::Pad", "Pad")
body.addObject(pad1)
pad1.Profile = sketch1
pad1.Length = 500

doc.recompute()
